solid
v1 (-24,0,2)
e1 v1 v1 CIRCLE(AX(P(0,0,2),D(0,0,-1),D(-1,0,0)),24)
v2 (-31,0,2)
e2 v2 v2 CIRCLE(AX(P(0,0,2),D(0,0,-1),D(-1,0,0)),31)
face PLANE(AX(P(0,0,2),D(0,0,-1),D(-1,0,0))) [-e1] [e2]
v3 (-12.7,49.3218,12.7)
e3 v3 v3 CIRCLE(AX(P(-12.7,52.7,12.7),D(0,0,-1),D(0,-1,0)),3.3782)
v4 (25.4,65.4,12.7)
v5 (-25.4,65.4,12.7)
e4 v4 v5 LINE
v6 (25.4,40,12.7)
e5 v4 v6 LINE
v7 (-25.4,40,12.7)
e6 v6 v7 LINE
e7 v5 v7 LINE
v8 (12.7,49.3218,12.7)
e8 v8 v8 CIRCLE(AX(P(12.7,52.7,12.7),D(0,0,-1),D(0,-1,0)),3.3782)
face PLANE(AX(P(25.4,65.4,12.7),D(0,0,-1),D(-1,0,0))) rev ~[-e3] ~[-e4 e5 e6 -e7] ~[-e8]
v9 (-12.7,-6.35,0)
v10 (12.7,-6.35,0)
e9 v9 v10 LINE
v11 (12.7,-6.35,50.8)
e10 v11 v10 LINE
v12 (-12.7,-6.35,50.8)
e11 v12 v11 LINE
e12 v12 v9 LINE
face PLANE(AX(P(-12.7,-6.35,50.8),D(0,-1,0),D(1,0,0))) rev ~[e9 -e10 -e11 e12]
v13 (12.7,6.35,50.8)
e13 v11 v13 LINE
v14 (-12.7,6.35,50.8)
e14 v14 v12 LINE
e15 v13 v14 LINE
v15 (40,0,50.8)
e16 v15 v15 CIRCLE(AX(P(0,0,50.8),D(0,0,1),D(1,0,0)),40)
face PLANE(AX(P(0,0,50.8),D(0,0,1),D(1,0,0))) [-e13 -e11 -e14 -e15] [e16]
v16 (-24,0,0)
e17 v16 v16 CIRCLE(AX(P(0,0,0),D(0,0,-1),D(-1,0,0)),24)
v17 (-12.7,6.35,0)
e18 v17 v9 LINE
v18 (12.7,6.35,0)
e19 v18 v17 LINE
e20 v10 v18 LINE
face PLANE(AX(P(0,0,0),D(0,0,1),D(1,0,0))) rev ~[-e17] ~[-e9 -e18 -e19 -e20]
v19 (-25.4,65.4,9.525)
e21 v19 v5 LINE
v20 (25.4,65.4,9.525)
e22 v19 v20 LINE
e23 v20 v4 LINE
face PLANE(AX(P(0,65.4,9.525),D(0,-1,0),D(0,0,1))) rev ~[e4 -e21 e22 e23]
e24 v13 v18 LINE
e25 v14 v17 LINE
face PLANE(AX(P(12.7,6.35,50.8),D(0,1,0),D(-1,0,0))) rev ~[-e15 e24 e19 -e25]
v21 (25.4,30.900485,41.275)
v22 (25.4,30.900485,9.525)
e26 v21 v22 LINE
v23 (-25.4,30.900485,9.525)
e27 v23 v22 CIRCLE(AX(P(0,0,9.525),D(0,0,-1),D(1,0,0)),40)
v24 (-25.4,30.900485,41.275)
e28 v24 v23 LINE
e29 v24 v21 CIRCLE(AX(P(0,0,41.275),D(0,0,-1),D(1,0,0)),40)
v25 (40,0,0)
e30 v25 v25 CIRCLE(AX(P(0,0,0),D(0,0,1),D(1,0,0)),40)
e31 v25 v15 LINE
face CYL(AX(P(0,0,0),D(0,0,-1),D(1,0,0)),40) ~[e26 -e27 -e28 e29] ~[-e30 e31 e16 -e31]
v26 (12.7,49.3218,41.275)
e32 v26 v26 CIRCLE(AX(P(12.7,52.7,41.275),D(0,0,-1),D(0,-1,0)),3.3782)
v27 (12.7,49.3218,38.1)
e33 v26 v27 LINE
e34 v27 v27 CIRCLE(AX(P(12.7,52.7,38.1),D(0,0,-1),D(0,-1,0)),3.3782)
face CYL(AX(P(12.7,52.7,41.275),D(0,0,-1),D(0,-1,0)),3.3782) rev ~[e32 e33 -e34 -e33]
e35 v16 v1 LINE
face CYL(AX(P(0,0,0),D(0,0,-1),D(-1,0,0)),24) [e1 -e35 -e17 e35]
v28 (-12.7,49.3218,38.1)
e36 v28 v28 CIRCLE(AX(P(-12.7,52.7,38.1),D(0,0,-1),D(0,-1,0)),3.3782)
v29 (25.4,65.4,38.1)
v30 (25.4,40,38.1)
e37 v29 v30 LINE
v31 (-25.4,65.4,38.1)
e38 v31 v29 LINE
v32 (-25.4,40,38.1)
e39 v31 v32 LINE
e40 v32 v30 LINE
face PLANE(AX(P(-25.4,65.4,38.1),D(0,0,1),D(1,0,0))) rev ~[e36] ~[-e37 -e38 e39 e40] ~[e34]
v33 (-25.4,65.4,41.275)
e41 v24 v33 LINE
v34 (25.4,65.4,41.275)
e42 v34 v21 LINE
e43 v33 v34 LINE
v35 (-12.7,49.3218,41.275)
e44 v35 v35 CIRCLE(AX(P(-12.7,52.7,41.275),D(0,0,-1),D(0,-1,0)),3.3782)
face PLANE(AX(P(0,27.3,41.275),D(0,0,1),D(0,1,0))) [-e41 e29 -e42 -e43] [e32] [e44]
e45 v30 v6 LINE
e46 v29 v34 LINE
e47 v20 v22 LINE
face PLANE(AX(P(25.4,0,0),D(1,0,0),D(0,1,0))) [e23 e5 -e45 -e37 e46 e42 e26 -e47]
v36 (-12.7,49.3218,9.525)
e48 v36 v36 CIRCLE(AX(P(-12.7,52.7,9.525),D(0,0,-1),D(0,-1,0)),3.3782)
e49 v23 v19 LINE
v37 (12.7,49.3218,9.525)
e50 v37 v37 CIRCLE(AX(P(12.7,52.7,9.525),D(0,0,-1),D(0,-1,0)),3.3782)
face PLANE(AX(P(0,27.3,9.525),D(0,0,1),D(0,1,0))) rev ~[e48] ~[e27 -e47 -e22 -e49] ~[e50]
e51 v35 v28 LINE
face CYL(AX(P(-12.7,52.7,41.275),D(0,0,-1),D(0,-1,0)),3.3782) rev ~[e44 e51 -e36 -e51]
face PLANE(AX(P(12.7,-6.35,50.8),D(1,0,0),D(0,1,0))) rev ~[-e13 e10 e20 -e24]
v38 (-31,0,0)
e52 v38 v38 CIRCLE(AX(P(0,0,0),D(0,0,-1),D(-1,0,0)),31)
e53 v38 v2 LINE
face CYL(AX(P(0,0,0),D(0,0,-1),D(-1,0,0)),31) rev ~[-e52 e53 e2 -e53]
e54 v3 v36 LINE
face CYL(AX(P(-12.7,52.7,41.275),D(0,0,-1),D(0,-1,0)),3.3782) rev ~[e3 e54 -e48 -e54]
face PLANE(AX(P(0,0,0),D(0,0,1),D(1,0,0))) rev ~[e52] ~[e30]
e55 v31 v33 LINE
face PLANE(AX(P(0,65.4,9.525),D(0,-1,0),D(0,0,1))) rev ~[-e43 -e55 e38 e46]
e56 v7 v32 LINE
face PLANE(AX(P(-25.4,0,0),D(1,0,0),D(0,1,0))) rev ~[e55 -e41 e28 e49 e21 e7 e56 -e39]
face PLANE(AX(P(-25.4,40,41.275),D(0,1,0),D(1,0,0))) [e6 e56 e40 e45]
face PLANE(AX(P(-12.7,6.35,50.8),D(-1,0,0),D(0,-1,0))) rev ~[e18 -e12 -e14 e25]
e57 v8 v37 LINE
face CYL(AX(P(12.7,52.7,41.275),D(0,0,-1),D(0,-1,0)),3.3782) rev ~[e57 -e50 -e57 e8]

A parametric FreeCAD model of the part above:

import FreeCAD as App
import Part
import Sketcher
from FreeCAD import Vector
Q = App.Units.Quantity

doc = App.newDocument("Part")
body = doc.addObject("PartDesign::Body", "Body")

# Sketch on XY plane
sketch1 = doc.addObject("Sketcher::SketchObject", "Sketch")
body.addObject(sketch1)
sketch1.AttachmentSupport = (doc.XY_Plane, [""])
sketch1.MapMode = "FlatFace"
sketch1.addGeometry(Part.Circle(Vector(0, 0, 0), Vector(0, 0, 1), 40), False)
sketch1.addConstraint([
    Sketcher.Constraint("Coincident", 0, 3, -1, 1),
    Sketcher.Constraint("Diameter", 0, Q("3.1496 in")),
])
pad1 = doc.addObject("PartDesign::Pad", "Pad")
body.addObject(pad1)
pad1.Profile = sketch1
pad1.Length = Q("2 in")

# Sketch on XY plane
sketch2 = doc.addObject("Sketcher::SketchObject", "Sketch001")
body.addObject(sketch2)
sketch2.AttachmentSupport = (doc.XY_Plane, [""])
sketch2.MapMode = "FlatFace"
sketch2.addGeometry([
    Part.Circle(Vector(0, 0, 0), Vector(0, 0, 1), 31),
    Part.Circle(Vector(0, 0, 0), Vector(0, 0, 1), 24),
], False)
sketch2.addConstraint([
    Sketcher.Constraint("Coincident", 0, 3, -1, 1),
    Sketcher.Constraint("Coincident", 1, 3, -1, 1),
    Sketcher.Constraint("Diameter", 0, 62.0),
    Sketcher.Constraint("Diameter", 1, 48.0),
])
pocket1 = doc.addObject("PartDesign::Pocket", "Pocket")
body.addObject(pocket1)
pocket1.Profile = sketch2
pocket1.Length = 2
pocket1.Reversed = True

# Sketch on XY plane
sketch3 = doc.addObject("Sketcher::SketchObject", "Sketch002")
body.addObject(sketch3)
sketch3.AttachmentSupport = (doc.XY_Plane, [""])
sketch3.MapMode = "FlatFace"
sketch3.addGeometry(Part.Circle(Vector(0, 0, 0), Vector(0, 0, 1), 3.2), False)
sketch3.addConstraint([
    Sketcher.Constraint("Coincident", 0, 3, -1, 1),
    Sketcher.Constraint("Diameter", 0, Q("0.25 in")),
])
pocket2 = doc.addObject("PartDesign::Pocket", "Pocket001")
body.addObject(pocket2)
pocket2.Profile = sketch3
pocket2.Type = "ThroughAll"
pocket2.Reversed = True

# Sketch on XY plane
sketch4 = doc.addObject("Sketcher::SketchObject", "Sketch003")
body.addObject(sketch4)
sketch4.AttachmentSupport = (doc.XY_Plane, [""])
sketch4.MapMode = "FlatFace"
sketch4.AttachmentOffset = App.Placement(Vector(0, 0, 2 * 25.4), App.Rotation())
sketch4.addGeometry([
    Part.LineSegment(Vector(-13, 6, 0), Vector(-13, -6, 0)),
    Part.LineSegment(Vector(-13, -6, 0), Vector(13, -6, 0)),
    Part.LineSegment(Vector(13, -6, 0), Vector(13, 6, 0)),
    Part.LineSegment(Vector(13, 6, 0), Vector(-13, 6, 0)),
], False)
sketch4.addConstraint([
    Sketcher.Constraint("Coincident", 0, 2, 1, 1),
    Sketcher.Constraint("Coincident", 1, 2, 2, 1),
    Sketcher.Constraint("Coincident", 2, 2, 3, 1),
    Sketcher.Constraint("Coincident", 3, 2, 0, 1),
    Sketcher.Constraint("Vertical", 0),
    Sketcher.Constraint("Horizontal", 1),
    Sketcher.Constraint("Vertical", 2),
    Sketcher.Constraint("Horizontal", 3),
    Sketcher.Constraint("Symmetric", 0, 2, 2, 2, -1, 1),
    Sketcher.Constraint("DistanceX", 1, 1, 1, 2, Q("1 in")),
    Sketcher.Constraint("DistanceY", 0, 2, 0, 1, Q("0.5 in")),
])
pocket3 = doc.addObject("PartDesign::Pocket", "Pocket002")
body.addObject(pocket3)
pocket3.Profile = sketch4
pocket3.Type = "ThroughAll"

# Sketch on YZ plane
sketch5 = doc.addObject("Sketcher::SketchObject", "Sketch004")
body.addObject(sketch5)
sketch5.AttachmentSupport = (doc.YZ_Plane, [""])
sketch5.MapMode = "FlatFace"
sketch5.addGeometry([
    Part.LineSegment(Vector(27, 10, 0), Vector(65, 10, 0)),
    Part.LineSegment(Vector(65, 10, 0), Vector(65, 41, 0)),
    Part.LineSegment(Vector(65, 41, 0), Vector(27, 41, 0)),
    Part.LineSegment(Vector(27, 41, 0), Vector(27, 10, 0)),
], False)
sketch5.addConstraint([
    Sketcher.Constraint("Coincident", 0, 2, 1, 1),
    Sketcher.Constraint("Coincident", 1, 2, 2, 1),
    Sketcher.Constraint("Coincident", 2, 2, 3, 1),
    Sketcher.Constraint("Coincident", 3, 2, 0, 1),
    Sketcher.Constraint("Horizontal", 0),
    Sketcher.Constraint("Vertical", 1),
    Sketcher.Constraint("Horizontal", 2),
    Sketcher.Constraint("Vertical", 3),
    Sketcher.Constraint("DistanceX", 0, 1, 0, 2, Q("1.5 in")),
    Sketcher.Constraint("DistanceY", 1, 1, 1, 2, Q("1.25 in")),
    Sketcher.Constraint("DistanceY", -1, 1, 0, 2, Q("0.375 in")),
    Sketcher.Constraint("DistanceX", -1, 1, 0, 2, Q("2.5748 in")),
])
pad2 = doc.addObject("PartDesign::Pad", "Pad001")
body.addObject(pad2)
pad2.Profile = sketch5
pad2.Length = Q("2 in")
pad2.Midplane = True

# Sketch on XZ plane
sketch6 = doc.addObject("Sketcher::SketchObject", "Sketch005")
body.addObject(sketch6)
sketch6.AttachmentSupport = (doc.XZ_Plane, [""])
sketch6.MapMode = "FlatFace"
sketch6.AttachmentOffset = App.Placement(Vector(0, 0, -2.5748031 * 25.4), App.Rotation())
sketch6.addGeometry([
    Part.LineSegment(Vector(-25, 13, 0), Vector(-25, 38, 0)),
    Part.LineSegment(Vector(-25, 38, 0), Vector(25, 38, 0)),
    Part.LineSegment(Vector(25, 38, 0), Vector(25, 13, 0)),
    Part.LineSegment(Vector(25, 13, 0), Vector(-25, 13, 0)),
], False)
sketch6.addConstraint([
    Sketcher.Constraint("Coincident", 0, 2, 1, 1),
    Sketcher.Constraint("Coincident", 1, 2, 2, 1),
    Sketcher.Constraint("Coincident", 2, 2, 3, 1),
    Sketcher.Constraint("Coincident", 3, 2, 0, 1),
    Sketcher.Constraint("Vertical", 0),
    Sketcher.Constraint("Horizontal", 1),
    Sketcher.Constraint("Vertical", 2),
    Sketcher.Constraint("Horizontal", 3),
    Sketcher.Constraint("DistanceY", 0, 1, 0, 2, Q("1 in")),
    Sketcher.Constraint("DistanceX", 0, 2, -1, 1, Q("1 in")),
    Sketcher.Constraint("DistanceX", -1, 1, 1, 2, Q("1 in")),
    Sketcher.Constraint("DistanceY", -1, 1, 0, 2, Q("1.5 in")),
])
pocket4 = doc.addObject("PartDesign::Pocket", "Pocket003")
body.addObject(pocket4)
pocket4.Profile = sketch6
pocket4.Length = Q("1 in")
pocket4.Reversed = True

# Sketch on XY plane
sketch7 = doc.addObject("Sketcher::SketchObject", "Sketch006")
body.addObject(sketch7)
sketch7.AttachmentSupport = (doc.XY_Plane, [""])
sketch7.MapMode = "FlatFace"
sketch7.AttachmentOffset = App.Placement(Vector(0, 0, 1.625 * 25.4), App.Rotation())
sketch7.addGeometry([
    Part.Circle(Vector(-12.7, 52.7, 0), Vector(0, 0, 1), 3.4),
    Part.Circle(Vector(12.7, 52.7, 0), Vector(0, 0, 1), 3.4),
], False)
sketch7.addConstraint([
    Sketcher.Constraint("Equal", 0, 1),
    Sketcher.Constraint("Symmetric", 0, 3, 1, 3, -2),
    Sketcher.Constraint("Diameter", 0, Q("0.266 in")),
    Sketcher.Constraint("DistanceX", 0, 3, 1, 3, Q("1 in")),
    Sketcher.Constraint("DistanceY", -1, 1, 0, 3, Q("2.0748 in")),
])
doc.recompute()
hole = doc.addObject("PartDesign::Hole", "Hole")
body.addObject(hole)
hole.Profile = sketch7
hole.ThreadType = "None"
hole.Diameter = Q("0.266 in")
hole.DepthType = "ThroughAll"

doc.recompute()
